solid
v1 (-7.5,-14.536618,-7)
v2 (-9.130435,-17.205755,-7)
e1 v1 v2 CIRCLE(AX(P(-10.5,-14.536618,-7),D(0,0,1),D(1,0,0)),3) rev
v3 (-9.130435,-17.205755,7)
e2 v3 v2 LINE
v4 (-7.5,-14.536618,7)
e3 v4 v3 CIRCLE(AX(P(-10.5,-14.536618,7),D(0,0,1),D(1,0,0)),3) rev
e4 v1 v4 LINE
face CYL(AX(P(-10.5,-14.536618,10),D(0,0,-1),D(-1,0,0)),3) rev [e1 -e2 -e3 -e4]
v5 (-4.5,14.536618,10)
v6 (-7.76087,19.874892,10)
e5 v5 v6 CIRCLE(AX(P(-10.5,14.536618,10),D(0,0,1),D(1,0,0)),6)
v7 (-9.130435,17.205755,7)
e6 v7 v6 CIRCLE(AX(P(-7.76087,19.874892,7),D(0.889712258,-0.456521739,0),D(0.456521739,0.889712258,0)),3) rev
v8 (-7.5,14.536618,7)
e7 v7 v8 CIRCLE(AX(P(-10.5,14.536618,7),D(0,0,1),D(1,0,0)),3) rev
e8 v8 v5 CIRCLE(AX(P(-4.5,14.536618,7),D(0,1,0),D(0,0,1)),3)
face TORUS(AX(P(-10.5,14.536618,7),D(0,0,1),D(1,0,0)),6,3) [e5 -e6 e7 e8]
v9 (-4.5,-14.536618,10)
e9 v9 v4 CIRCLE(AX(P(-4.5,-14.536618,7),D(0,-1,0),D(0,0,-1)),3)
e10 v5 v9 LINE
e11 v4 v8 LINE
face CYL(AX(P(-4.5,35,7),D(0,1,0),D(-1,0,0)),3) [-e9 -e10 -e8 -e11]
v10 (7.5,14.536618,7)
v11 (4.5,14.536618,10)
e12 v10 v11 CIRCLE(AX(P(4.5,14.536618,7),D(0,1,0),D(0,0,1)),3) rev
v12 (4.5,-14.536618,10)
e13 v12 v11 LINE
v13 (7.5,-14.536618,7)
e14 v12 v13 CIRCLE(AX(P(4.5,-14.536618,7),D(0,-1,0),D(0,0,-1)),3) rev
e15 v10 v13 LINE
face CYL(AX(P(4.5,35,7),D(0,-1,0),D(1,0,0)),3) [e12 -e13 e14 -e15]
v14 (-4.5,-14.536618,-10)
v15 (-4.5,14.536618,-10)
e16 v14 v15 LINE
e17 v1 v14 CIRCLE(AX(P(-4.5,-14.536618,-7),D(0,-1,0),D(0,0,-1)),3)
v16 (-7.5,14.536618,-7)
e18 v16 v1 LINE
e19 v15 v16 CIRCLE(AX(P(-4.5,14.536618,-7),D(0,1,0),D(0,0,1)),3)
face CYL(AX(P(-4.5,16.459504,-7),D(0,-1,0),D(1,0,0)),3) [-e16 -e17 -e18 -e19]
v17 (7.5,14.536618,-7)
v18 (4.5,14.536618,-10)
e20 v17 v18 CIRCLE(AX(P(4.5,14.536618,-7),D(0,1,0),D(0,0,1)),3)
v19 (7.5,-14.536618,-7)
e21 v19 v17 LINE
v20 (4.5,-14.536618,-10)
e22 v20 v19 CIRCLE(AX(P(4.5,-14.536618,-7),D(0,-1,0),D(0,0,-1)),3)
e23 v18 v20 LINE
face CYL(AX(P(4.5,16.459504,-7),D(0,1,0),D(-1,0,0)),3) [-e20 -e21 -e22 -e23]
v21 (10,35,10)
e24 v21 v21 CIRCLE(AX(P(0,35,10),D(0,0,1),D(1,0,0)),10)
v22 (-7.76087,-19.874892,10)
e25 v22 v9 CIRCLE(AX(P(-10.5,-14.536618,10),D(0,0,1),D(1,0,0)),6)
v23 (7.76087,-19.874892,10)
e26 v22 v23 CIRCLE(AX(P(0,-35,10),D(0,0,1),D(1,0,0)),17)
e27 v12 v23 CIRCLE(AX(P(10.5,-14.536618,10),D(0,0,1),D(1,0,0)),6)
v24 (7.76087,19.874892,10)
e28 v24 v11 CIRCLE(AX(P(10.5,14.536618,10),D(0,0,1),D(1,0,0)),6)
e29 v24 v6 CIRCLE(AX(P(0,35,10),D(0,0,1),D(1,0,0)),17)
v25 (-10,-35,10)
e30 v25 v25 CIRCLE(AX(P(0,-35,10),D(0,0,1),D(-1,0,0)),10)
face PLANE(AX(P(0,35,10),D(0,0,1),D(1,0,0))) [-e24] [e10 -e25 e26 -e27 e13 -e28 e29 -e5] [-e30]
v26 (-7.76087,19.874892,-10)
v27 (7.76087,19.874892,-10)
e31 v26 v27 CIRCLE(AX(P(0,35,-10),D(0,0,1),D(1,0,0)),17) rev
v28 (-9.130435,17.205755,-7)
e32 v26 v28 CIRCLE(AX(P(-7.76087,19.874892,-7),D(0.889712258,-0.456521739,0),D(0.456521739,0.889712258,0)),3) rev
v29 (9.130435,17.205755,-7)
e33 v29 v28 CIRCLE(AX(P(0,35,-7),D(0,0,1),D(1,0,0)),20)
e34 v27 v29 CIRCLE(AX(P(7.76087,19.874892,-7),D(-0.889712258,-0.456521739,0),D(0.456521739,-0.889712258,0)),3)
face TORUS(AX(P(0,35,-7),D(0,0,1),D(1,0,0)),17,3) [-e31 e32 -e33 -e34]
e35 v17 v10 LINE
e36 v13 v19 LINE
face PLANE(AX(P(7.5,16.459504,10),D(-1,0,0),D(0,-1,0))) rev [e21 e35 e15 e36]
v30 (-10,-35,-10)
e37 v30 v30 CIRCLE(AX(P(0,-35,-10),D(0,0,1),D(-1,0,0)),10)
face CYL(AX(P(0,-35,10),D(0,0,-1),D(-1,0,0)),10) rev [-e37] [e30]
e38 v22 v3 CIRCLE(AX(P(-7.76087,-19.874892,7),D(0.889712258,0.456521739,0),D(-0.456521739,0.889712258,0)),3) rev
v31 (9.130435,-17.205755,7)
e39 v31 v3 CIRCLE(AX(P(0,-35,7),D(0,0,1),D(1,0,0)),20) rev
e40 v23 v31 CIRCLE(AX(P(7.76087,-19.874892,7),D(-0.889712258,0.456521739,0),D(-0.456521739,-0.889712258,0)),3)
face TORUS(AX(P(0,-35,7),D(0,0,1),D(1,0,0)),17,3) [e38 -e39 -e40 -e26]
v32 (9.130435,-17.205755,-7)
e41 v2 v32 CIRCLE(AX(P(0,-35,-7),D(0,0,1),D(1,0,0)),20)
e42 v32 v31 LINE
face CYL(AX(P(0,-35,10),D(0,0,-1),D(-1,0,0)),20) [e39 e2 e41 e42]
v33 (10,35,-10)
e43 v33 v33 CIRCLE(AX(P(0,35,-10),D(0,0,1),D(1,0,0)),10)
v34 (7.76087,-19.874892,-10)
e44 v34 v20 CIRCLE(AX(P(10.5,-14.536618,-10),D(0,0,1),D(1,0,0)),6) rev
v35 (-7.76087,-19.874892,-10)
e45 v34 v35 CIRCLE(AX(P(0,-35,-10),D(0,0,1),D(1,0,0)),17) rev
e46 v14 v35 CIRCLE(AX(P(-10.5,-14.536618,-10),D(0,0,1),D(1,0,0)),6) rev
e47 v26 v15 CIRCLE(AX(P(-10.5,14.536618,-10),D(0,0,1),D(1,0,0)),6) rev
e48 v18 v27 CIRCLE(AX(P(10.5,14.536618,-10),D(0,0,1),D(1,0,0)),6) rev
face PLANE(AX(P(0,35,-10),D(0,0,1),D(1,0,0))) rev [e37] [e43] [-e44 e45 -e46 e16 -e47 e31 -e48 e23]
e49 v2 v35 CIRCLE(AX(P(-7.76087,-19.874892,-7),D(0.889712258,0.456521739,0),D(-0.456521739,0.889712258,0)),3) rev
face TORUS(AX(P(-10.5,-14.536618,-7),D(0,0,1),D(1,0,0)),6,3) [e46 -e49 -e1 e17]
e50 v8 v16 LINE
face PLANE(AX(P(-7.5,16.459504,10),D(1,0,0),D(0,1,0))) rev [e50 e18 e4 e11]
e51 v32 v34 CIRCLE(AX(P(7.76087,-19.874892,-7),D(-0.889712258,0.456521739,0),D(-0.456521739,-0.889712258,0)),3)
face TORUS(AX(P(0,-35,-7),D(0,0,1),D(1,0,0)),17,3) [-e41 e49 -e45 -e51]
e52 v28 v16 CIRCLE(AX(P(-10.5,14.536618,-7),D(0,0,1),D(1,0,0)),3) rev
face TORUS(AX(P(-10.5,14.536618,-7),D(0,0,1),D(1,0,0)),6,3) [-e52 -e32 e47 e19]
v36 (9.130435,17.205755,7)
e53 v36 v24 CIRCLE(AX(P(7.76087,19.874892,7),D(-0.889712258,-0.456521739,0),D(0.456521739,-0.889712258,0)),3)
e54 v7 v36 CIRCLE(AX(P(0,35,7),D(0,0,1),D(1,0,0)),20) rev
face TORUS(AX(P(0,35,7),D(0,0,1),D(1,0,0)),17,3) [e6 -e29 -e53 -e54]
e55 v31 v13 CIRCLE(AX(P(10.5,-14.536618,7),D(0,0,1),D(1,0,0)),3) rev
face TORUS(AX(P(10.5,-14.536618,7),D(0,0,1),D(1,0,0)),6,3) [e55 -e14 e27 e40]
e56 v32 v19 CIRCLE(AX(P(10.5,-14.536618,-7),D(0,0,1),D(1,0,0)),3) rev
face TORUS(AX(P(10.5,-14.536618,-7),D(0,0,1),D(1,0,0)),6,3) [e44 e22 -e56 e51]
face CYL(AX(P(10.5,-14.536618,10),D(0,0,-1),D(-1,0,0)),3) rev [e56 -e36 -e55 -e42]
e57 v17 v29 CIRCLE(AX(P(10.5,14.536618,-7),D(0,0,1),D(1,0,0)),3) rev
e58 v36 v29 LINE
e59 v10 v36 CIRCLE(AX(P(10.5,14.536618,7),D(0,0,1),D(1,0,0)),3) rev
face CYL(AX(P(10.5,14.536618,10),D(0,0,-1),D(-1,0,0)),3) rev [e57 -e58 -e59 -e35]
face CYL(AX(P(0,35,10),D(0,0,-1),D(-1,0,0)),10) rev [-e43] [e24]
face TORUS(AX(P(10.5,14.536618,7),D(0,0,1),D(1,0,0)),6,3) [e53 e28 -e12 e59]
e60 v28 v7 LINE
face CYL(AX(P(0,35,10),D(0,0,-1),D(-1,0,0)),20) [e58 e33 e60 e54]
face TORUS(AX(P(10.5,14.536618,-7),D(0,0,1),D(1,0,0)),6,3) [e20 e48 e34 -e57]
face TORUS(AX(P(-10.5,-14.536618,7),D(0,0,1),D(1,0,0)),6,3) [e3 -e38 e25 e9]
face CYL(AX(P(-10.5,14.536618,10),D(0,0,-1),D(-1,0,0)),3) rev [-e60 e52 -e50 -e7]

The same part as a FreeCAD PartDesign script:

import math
import FreeCAD as App
import Part
import Sketcher

V = App.Vector


def edges_at(feature, points):
    """Names of the edges that pass closest to the given points."""
    edges = feature.Shape.Edges
    near = lambda p: min(range(len(edges)), key=lambda i: edges[i].distToShape(Part.Vertex(*p))[0])
    return sorted({f"Edge{near(p) + 1}" for p in points})

doc = App.newDocument("Part")
params = doc.addObject("Spreadsheet::Sheet", "Params")
for row, (alias, value) in enumerate([
    ("sketch1_diameter", "20 mm"),
    ("sketch1_radius", "20 mm"),
    ("pad1_length", "20 mm"),
    ("fillet_radius", "3 mm"),
], start=1):
    params.set(f"A{row}", alias)
    params.set(f"B{row}", "=" + value)
    params.setAlias(f"B{row}", alias)

body = doc.addObject("PartDesign::Body", "Body")

sketch1 = doc.addObject("Sketcher::SketchObject", "Sketch")
body.addObject(sketch1)
sketch1.AttachmentSupport = (doc.XY_Plane, [""])
sketch1.MapMode = "FlatFace"
sketch1.addGeometry([
    Part.LineSegment(V(-8, 16, 0), V(-8, -16, 0)),
    Part.ArcOfCircle(Part.Circle(V(0, -35, 0), V(0, 0, 1), 20), math.radians(112), math.radians(428)),
    Part.LineSegment(V(8, -16, 0), V(8, 16, 0)),
    Part.ArcOfCircle(Part.Circle(V(0, 35, 0), V(0, 0, 1), 20), math.radians(-68), math.radians(248)),
    Part.Circle(V(0, -35, 0), V(0, 0, 1), 10),
    Part.Circle(V(0, 35, 0), V(0, 0, 1), 10),
], False)
sketch1.addConstraint([
    Sketcher.Constraint("Coincident", 0, 2, 1, 1),
    Sketcher.Constraint("Coincident", 1, 2, 2, 1),
    Sketcher.Constraint("Coincident", 2, 2, 3, 1),
    Sketcher.Constraint("Coincident", 3, 2, 0, 1),
    Sketcher.Constraint("Vertical", 0),
    Sketcher.Constraint("Vertical", 2),
    Sketcher.Constraint("Coincident", 4, 3, 1, 3),
    Sketcher.Constraint("Coincident", 5, 3, 3, 3),
    Sketcher.Constraint("Equal", 1, 3),
    Sketcher.Constraint("Equal", 4, 5),
    Sketcher.Constraint("Symmetric", 1, 3, 3, 3, -1, 1),
    Sketcher.Constraint("Symmetric", 0, 2, 1, 2, -2),
    Sketcher.Constraint("Diameter", 4, 20.0),
    Sketcher.Constraint("Radius", 1, 20.0),
    Sketcher.Constraint("DistanceY", 1, 3, -1, 1, 35.0),
    Sketcher.Constraint("DistanceX", 0, 2, 1, 2, 15.0),
])
sketch1.setExpression("Constraints[12]", "Params.sketch1_diameter")
sketch1.setExpression("Constraints[13]", "Params.sketch1_radius")
pad1 = doc.addObject("PartDesign::Pad", "Pad")
body.addObject(pad1)
pad1.Profile = sketch1
pad1.setExpression("Length", "Params.pad1_length")
pad1.Midplane = True
doc.recompute()

fillet = doc.addObject("PartDesign::Fillet", "Fillet")
body.addObject(fillet)
fillet.Base = (pad1, edges_at(pad1, [
    (0, -55, 10),
    (7.5, 0, 10),
    (0, 55, 10),
    (7.5, 0, -10),
    (0, -55, -10),
    (-7.5, 0, -10),
    (0, 55, -10),
    (7.5, 16.46, 0),
    (7.5, -16.46, 0),
    (-7.5, -16.46, 0),
    (-7.5, 16.46, 0),
    (-7.5, 0, 10),
]))
fillet.setExpression("Radius", "Params.fillet_radius")

doc.recompute()
